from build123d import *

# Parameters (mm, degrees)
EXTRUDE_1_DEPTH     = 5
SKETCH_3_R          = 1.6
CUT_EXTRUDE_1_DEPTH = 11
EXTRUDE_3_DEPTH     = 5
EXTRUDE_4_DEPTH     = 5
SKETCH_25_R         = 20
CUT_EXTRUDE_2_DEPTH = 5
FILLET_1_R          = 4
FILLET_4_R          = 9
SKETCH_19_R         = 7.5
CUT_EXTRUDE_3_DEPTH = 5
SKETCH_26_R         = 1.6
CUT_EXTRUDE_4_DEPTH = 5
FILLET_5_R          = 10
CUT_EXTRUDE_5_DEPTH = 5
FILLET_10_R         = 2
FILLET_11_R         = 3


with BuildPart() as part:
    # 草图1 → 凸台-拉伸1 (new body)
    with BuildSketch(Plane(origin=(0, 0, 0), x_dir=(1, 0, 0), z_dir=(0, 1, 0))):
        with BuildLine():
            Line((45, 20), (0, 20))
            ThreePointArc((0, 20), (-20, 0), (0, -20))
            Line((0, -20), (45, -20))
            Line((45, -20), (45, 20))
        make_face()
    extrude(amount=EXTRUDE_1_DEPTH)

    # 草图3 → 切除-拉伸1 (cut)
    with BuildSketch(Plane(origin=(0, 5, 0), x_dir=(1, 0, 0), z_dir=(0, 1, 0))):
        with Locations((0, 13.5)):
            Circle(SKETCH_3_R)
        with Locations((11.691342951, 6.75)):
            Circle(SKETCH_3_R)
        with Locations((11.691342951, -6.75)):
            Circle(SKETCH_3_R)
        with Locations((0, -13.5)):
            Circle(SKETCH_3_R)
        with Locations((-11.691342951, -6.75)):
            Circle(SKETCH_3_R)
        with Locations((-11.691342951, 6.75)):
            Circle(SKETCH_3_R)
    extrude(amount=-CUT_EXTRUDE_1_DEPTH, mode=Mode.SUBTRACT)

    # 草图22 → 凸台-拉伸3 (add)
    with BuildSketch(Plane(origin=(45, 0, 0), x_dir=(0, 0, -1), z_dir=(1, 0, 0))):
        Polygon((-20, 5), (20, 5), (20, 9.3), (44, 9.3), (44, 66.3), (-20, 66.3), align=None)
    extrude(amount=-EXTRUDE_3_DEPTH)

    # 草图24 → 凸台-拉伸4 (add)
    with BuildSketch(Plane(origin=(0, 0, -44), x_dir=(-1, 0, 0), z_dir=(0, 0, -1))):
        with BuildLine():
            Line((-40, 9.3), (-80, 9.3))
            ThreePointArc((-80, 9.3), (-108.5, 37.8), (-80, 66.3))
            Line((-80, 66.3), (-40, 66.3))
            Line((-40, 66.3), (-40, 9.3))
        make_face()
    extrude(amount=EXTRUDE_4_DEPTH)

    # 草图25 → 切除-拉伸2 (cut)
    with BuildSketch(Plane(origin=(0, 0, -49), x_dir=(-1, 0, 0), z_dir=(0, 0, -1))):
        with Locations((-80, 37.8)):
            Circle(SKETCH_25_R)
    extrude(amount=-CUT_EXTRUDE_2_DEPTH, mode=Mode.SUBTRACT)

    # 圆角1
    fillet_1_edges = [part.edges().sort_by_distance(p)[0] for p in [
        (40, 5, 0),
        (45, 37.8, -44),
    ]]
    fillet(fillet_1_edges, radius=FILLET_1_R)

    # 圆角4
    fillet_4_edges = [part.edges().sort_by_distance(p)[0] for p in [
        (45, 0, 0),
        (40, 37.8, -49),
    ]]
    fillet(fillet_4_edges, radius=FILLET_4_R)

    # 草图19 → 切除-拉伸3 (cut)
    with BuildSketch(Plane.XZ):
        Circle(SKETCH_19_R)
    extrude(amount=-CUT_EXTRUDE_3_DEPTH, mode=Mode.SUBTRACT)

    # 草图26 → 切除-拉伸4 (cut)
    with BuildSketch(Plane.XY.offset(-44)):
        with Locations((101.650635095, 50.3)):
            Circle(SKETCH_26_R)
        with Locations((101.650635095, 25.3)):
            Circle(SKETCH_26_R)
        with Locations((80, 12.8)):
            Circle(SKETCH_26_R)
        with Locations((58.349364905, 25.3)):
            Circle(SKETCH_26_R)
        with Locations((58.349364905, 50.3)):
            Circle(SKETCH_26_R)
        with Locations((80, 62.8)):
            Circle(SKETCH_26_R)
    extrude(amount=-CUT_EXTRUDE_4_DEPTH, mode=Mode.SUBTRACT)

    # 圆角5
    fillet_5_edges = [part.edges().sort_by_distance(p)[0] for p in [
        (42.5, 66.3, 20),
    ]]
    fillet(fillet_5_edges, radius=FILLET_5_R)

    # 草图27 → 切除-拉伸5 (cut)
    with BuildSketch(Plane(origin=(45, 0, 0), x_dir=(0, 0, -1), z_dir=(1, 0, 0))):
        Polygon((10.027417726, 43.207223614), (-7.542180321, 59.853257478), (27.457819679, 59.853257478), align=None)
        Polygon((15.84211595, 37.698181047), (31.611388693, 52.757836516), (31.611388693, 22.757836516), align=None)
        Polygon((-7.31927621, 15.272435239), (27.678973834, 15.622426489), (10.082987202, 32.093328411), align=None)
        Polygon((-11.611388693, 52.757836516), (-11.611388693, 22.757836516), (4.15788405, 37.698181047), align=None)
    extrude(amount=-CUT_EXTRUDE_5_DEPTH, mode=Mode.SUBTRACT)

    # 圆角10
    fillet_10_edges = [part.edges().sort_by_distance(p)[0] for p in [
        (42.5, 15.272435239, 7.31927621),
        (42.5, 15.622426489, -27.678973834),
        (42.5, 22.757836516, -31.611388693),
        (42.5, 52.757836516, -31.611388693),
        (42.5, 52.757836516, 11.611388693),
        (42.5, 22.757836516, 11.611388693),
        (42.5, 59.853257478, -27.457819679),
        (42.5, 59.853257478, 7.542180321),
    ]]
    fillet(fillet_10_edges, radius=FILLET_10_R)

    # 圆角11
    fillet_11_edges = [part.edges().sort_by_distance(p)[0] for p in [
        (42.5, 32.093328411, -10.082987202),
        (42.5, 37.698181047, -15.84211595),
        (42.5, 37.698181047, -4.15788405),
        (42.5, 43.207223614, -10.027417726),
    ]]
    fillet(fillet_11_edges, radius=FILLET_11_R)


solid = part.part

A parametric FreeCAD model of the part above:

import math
import FreeCAD as App
import Part
import Sketcher
Q = App.Units.Quantity


def edges_at(feature, points):
    """Names of the edges that pass closest to the given points."""
    edges = feature.Shape.Edges
    near = lambda p: min(range(len(edges)), key=lambda i: edges[i].distToShape(Part.Vertex(*p))[0])
    return sorted({f"Edge{near(p) + 1}" for p in points})


def add_polygon(sketch, points):
    """Adds a closed chain of lines whose ends are joined by coincident constraints."""
    first, n = sketch.GeometryCount, len(points)
    for a, b in zip(points, points[1:] + points[:1]):
        sketch.addGeometry(Part.LineSegment(App.Vector(*a, 0), App.Vector(*b, 0)), False)
    for i in range(n):
        sketch.addConstraint(Sketcher.Constraint("Coincident", first + i, 2, first + (i + 1) % n, 1))

doc = App.newDocument("Part")
body = doc.addObject("PartDesign::Body", "Body")

sketch1 = doc.addObject("Sketcher::SketchObject", "Sketch")
body.addObject(sketch1)
sketch1.AttachmentSupport = (doc.XZ_Plane, [""])
sketch1.MapMode = "FlatFace"
sketch1.addGeometry([
    Part.LineSegment(App.Vector(45, -20, 0), App.Vector(0, -20, 0)),
    Part.ArcOfCircle(Part.Circle(App.Vector(0, 0, 0), App.Vector(0, 0, 1), 20), math.radians(90), math.radians(270)),
    Part.LineSegment(App.Vector(0, 20, 0), App.Vector(45, 20, 0)),
    Part.LineSegment(App.Vector(45, 20, 0), App.Vector(45, -20, 0)),
], False)
sketch1.addConstraint([
    Sketcher.Constraint("Tangent", 0, 2, 1, 2),
    Sketcher.Constraint("Tangent", 1, 1, 2, 1),
    Sketcher.Constraint("Coincident", 2, 2, 3, 1),
    Sketcher.Constraint("Coincident", 3, 2, 0, 1),
    Sketcher.Constraint("Horizontal", 0),
    Sketcher.Constraint("Horizontal", 2),
    Sketcher.Constraint("Vertical", 3),
    Sketcher.Constraint("Coincident", 1, 3, -1, 1),
    Sketcher.Constraint("Radius", 1, Q("20 mm")),
    Sketcher.Constraint("DistanceX", 0, 2, 0, 1, Q("45 mm")),
])
pad1 = doc.addObject("PartDesign::Pad", "Pad")
body.addObject(pad1)
pad1.Profile = sketch1
pad1.Length = 5
pad1.Reversed = True

sketch2 = doc.addObject("Sketcher::SketchObject", "Sketch001")
body.addObject(sketch2)
sketch2.AttachmentSupport = (doc.XZ_Plane, [""])
sketch2.MapMode = "FlatFace"
sketch2.AttachmentOffset = App.Placement(App.Vector(0, 0, -5), App.Rotation())
sketch2.addGeometry([
    Part.Circle(App.Vector(0, -13.5, 0), App.Vector(0, 0, 1), 1.6),
    Part.Circle(App.Vector(11.7, -6.8, 0), App.Vector(0, 0, 1), 1.6),
    Part.Circle(App.Vector(11.7, 6.8, 0), App.Vector(0, 0, 1), 1.6),
    Part.Circle(App.Vector(0, 13.5, 0), App.Vector(0, 0, 1), 1.6),
    Part.Circle(App.Vector(-11.7, 6.8, 0), App.Vector(0, 0, 1), 1.6),
    Part.Circle(App.Vector(-11.7, -6.8, 0), App.Vector(0, 0, 1), 1.6),
], False)
sketch2.addConstraint([
    Sketcher.Constraint("Equal", 0, 1),
    Sketcher.Constraint("Equal", 1, 2),
    Sketcher.Constraint("Equal", 2, 3),
    Sketcher.Constraint("Equal", 3, 4),
    Sketcher.Constraint("Equal", 4, 5),
    Sketcher.Constraint("Symmetric", 0, 3, 3, 3, -1, 1),
    Sketcher.Constraint("Symmetric", 1, 3, 4, 3, -1, 1),
    Sketcher.Constraint("Symmetric", 2, 3, 5, 3, -1, 1),
    Sketcher.Constraint("Symmetric", 2, 3, 4, 3, -2),
    Sketcher.Constraint("PointOnObject", 0, 3, -2),
    Sketcher.Constraint("Diameter", 0, Q("3.2 mm")),
    Sketcher.Constraint("DistanceY", 0, 3, 3, 3, Q("27 mm")),
    Sketcher.Constraint("DistanceY", 1, 3, 2, 3, Q("13.5 mm")),
    Sketcher.Constraint("DistanceX", -1, 1, 1, 3, Q("11.691343 mm")),
])
pocket1 = doc.addObject("PartDesign::Pocket", "Pocket")
body.addObject(pocket1)
pocket1.Profile = sketch2
pocket1.Length = 11
pocket1.Reversed = True

sketch3 = doc.addObject("Sketcher::SketchObject", "Sketch002")
body.addObject(sketch3)
sketch3.AttachmentSupport = (doc.YZ_Plane, [""])
sketch3.MapMode = "FlatFace"
sketch3.AttachmentOffset = App.Placement(App.Vector(0, 0, 45), App.Rotation())
add_polygon(sketch3, [(5, 20), (5, -20), (9.3, -20), (9.3, -44), (66.3, -44), (66.3, 20)])
sketch3.addConstraint([
    Sketcher.Constraint("Vertical", 0),
    Sketcher.Constraint("Horizontal", 1),
    Sketcher.Constraint("Vertical", 2),
    Sketcher.Constraint("Horizontal", 3),
    Sketcher.Constraint("Vertical", 4),
    Sketcher.Constraint("Horizontal", 5),
    Sketcher.Constraint("DistanceX", 3, 1, 3, 2, Q("57 mm")),
    Sketcher.Constraint("DistanceY", 0, 2, 0, 1, Q("40 mm")),
    Sketcher.Constraint("DistanceY", 2, 2, 2, 1, Q("24 mm")),
    Sketcher.Constraint("DistanceX", 1, 1, 1, 2, Q("4.3 mm")),
    Sketcher.Constraint("DistanceX", -1, 1, 0, 2, Q("5 mm")),
    Sketcher.Constraint("DistanceY", 0, 2, -1, 1, Q("20 mm")),
])
pad2 = doc.addObject("PartDesign::Pad", "Pad001")
body.addObject(pad2)
pad2.Profile = sketch3
pad2.Length = 5
pad2.Reversed = True

sketch4 = doc.addObject("Sketcher::SketchObject", "Sketch003")
body.addObject(sketch4)
sketch4.AttachmentSupport = (doc.XY_Plane, [""])
sketch4.MapMode = "FlatFace"
sketch4.AttachmentOffset = App.Placement(App.Vector(0, 0, -44), App.Rotation())
sketch4.addGeometry([
    Part.LineSegment(App.Vector(80, 9, 0), App.Vector(40, 9, 0)),
    Part.LineSegment(App.Vector(40, 9, 0), App.Vector(40, 66, 0)),
    Part.LineSegment(App.Vector(40, 66, 0), App.Vector(80, 66, 0)),
    Part.ArcOfCircle(Part.Circle(App.Vector(80, 38, 0), App.Vector(0, 0, 1), 28), math.radians(-90), math.radians(90)),
], False)
sketch4.addConstraint([
    Sketcher.Constraint("Coincident", 0, 2, 1, 1),
    Sketcher.Constraint("Coincident", 1, 2, 2, 1),
    Sketcher.Constraint("Tangent", 2, 2, 3, 2),
    Sketcher.Constraint("Tangent", 3, 1, 0, 1),
    Sketcher.Constraint("Horizontal", 0),
    Sketcher.Constraint("Vertical", 1),
    Sketcher.Constraint("Horizontal", 2),
    Sketcher.Constraint("Radius", 3, Q("28.5 mm")),
    Sketcher.Constraint("DistanceX", 0, 2, 0, 1, Q("40 mm")),
    Sketcher.Constraint("DistanceX", -1, 1, 3, 3, Q("80 mm")),
    Sketcher.Constraint("DistanceY", -1, 1, 3, 3, Q("37.8 mm")),
])
pad3 = doc.addObject("PartDesign::Pad", "Pad002")
body.addObject(pad3)
pad3.Profile = sketch4
pad3.Length = 5
pad3.Reversed = True

sketch5 = doc.addObject("Sketcher::SketchObject", "Sketch004")
body.addObject(sketch5)
sketch5.AttachmentSupport = (doc.XY_Plane, [""])
sketch5.MapMode = "FlatFace"
sketch5.AttachmentOffset = App.Placement(App.Vector(0, 0, -49), App.Rotation())
sketch5.addGeometry(Part.Circle(App.Vector(80, 38, 0), App.Vector(0, 0, 1), 20), False)
sketch5.addConstraint([
    Sketcher.Constraint("Diameter", 0, Q("40 mm")),
    Sketcher.Constraint("DistanceX", -1, 1, 0, 3, Q("80 mm")),
    Sketcher.Constraint("DistanceY", -1, 1, 0, 3, Q("37.8 mm")),
])
pocket2 = doc.addObject("PartDesign::Pocket", "Pocket001")
body.addObject(pocket2)
pocket2.Profile = sketch5
pocket2.Length = 5
pocket2.Reversed = True
doc.recompute()

fillet = doc.addObject("PartDesign::Fillet", "Fillet")
body.addObject(fillet)
fillet.Base = (pocket2, edges_at(pocket2, [(40, 5, 0), (45, 37.8, -44)]))
fillet.Radius = 4
doc.recompute()

fillet2 = doc.addObject("PartDesign::Fillet", "Fillet001")
body.addObject(fillet2)
fillet2.Base = (fillet, edges_at(fillet, [(45, 0, 0), (40, 37.8, -49)]))
fillet2.Radius = 9

sketch6 = doc.addObject("Sketcher::SketchObject", "Sketch005")
body.addObject(sketch6)
sketch6.AttachmentSupport = (doc.XZ_Plane, [""])
sketch6.MapMode = "FlatFace"
sketch6.addGeometry(Part.Circle(App.Vector(0, 0, 0), App.Vector(0, 0, 1), 8), False)
sketch6.addConstraint([
    Sketcher.Constraint("Coincident", 0, 3, -1, 1),
    Sketcher.Constraint("Diameter", 0, Q("15 mm")),
])
pocket3 = doc.addObject("PartDesign::Pocket", "Pocket002")
body.addObject(pocket3)
pocket3.Profile = sketch6
pocket3.Length = 5

sketch7 = doc.addObject("Sketcher::SketchObject", "Sketch006")
body.addObject(sketch7)
sketch7.AttachmentSupport = (doc.XY_Plane, [""])
sketch7.MapMode = "FlatFace"
sketch7.AttachmentOffset = App.Placement(App.Vector(0, 0, -44), App.Rotation())
sketch7.addGeometry([
    Part.Circle(App.Vector(101.7, 50.3, 0), App.Vector(0, 0, 1), 1.6),
    Part.Circle(App.Vector(101.7, 25.3, 0), App.Vector(0, 0, 1), 1.6),
    Part.Circle(App.Vector(80, 12.8, 0), App.Vector(0, 0, 1), 1.6),
    Part.Circle(App.Vector(58.3, 25.3, 0), App.Vector(0, 0, 1), 1.6),
    Part.Circle(App.Vector(58.3, 50.3, 0), App.Vector(0, 0, 1), 1.6),
    Part.Circle(App.Vector(80, 62.8, 0), App.Vector(0, 0, 1), 1.6),
], False)
sketch7.addConstraint([
    Sketcher.Constraint("Equal", 0, 1),
    Sketcher.Constraint("Equal", 1, 2),
    Sketcher.Constraint("Equal", 2, 3),
    Sketcher.Constraint("Equal", 3, 4),
    Sketcher.Constraint("Equal", 4, 5),
    Sketcher.Constraint("Horizontal", 1, 3, 3, 3),
    Sketcher.Constraint("Horizontal", 0, 3, 4, 3),
    Sketcher.Constraint("Vertical", 0, 3, 1, 3),
    Sketcher.Constraint("Vertical", 3, 3, 4, 3),
    Sketcher.Constraint("Vertical", 2, 3, 5, 3),
    Sketcher.Constraint("Diameter", 0, Q("3.2 mm")),
    Sketcher.Constraint("DistanceX", -1, 1, 2, 3, Q("80 mm")),
    Sketcher.Constraint("DistanceY", 1, 3, 0, 3, Q("25 mm")),
    Sketcher.Constraint("DistanceY", 2, 3, 5, 3, Q("50 mm")),
    Sketcher.Constraint("DistanceY", -1, 1, 0, 3, Q("50.3 mm")),
    Sketcher.Constraint("DistanceY", -1, 1, 2, 3, Q("12.8 mm")),
    Sketcher.Constraint("DistanceX", 3, 3, 1, 3, Q("43.30127 mm")),
    Sketcher.Constraint("DistanceX", -1, 1, 0, 3, Q("101.650635 mm")),
])
pocket4 = doc.addObject("PartDesign::Pocket", "Pocket003")
body.addObject(pocket4)
pocket4.Profile = sketch7
pocket4.Length = 5
doc.recompute()

fillet3 = doc.addObject("PartDesign::Fillet", "Fillet002")
body.addObject(fillet3)
fillet3.Base = (pocket4, edges_at(pocket4, [(42.5, 66.3, 20)]))
fillet3.Radius = 10

sketch8 = doc.addObject("Sketcher::SketchObject", "Sketch007")
body.addObject(sketch8)
sketch8.AttachmentSupport = (doc.YZ_Plane, [""])
sketch8.MapMode = "FlatFace"
sketch8.AttachmentOffset = App.Placement(App.Vector(0, 0, 45), App.Rotation())
add_polygon(sketch8, [(60, 8), (43, -10), (60, -27)])
add_polygon(sketch8, [(53, -32), (38, -16), (23, -32)])
add_polygon(sketch8, [(15, 7), (16, -28), (32, -10)])
add_polygon(sketch8, [(53, 12), (23, 12), (38, -4)])
sketch8.addConstraint([
    Sketcher.Constraint("Vertical", 2),
    Sketcher.Constraint("Horizontal", 5),
    Sketcher.Constraint("Horizontal", 9),
    Sketcher.Constraint("Parallel", 1, 3),
    Sketcher.Constraint("Parallel", 0, 4),
    Sketcher.Constraint("Vertical", 4, 2, 9, 2),
    Sketcher.Constraint("Vertical", 3, 2, 10, 2),
    Sketcher.Constraint("Vertical", 5, 2, 11, 2),
    Sketcher.Constraint("Equal", 1, 7),
    Sketcher.Constraint("Equal", 0, 8),
    Sketcher.Constraint("Equal", 4, 10),
    Sketcher.Constraint("DistanceX", 5, 1, 5, 2, Q("30 mm")),
    Sketcher.Constraint("DistanceY", 2, 1, 2, 2, Q("35 mm")),
    Sketcher.Constraint("Distance", 6, Q("35 mm")),
    Sketcher.Constraint("DistanceY", 1, 2, 0, 2, Q("17.430402 mm")),
    Sketcher.Constraint("DistanceY", 3, 2, 0, 2, Q("5.814698 mm")),
    Sketcher.Constraint("DistanceY", 4, 2, 7, 2, Q("21.528401 mm")),
    Sketcher.Constraint("DistanceX", 6, 2, 7, 2, Q("16.470902 mm")),
    Sketcher.Constraint("DistanceX", 8, 2, 4, 2, Q("7.485401 mm")),
    Sketcher.Constraint("Distance", 1, Q("24.102061 mm")),
    Sketcher.Constraint("DistanceY", 1, 2, -1, 1, Q("27.45782 mm")),
    Sketcher.Constraint("DistanceX", -1, 1, 3, 2, Q("37.698181 mm")),
    Sketcher.Constraint("DistanceY", -1, 1, 9, 2, Q("11.611389 mm")),
    Sketcher.Constraint("DistanceX", 4, 2, 1, 2, Q("37.095421 mm")),
])
pocket5 = doc.addObject("PartDesign::Pocket", "Pocket004")
body.addObject(pocket5)
pocket5.Profile = sketch8
pocket5.Length = 5
doc.recompute()

fillet4 = doc.addObject("PartDesign::Fillet", "Fillet003")
body.addObject(fillet4)
fillet4.Base = (pocket5, edges_at(pocket5, [
    (42.5, 15.272, 7.319),
    (42.5, 15.622, -27.679),
    (42.5, 22.758, -31.611),
    (42.5, 52.758, -31.611),
    (42.5, 52.758, 11.611),
    (42.5, 22.758, 11.611),
    (42.5, 59.853, -27.458),
    (42.5, 59.853, 7.542),
]))
fillet4.Radius = 2
doc.recompute()

fillet5 = doc.addObject("PartDesign::Fillet", "Fillet004")
body.addObject(fillet5)
fillet5.Base = (fillet4, edges_at(fillet4, [
    (42.5, 32.093, -10.083),
    (42.5, 37.698, -15.842),
    (42.5, 37.698, -4.158),
    (42.5, 43.207, -10.027),
]))
fillet5.Radius = 3

doc.recompute()
